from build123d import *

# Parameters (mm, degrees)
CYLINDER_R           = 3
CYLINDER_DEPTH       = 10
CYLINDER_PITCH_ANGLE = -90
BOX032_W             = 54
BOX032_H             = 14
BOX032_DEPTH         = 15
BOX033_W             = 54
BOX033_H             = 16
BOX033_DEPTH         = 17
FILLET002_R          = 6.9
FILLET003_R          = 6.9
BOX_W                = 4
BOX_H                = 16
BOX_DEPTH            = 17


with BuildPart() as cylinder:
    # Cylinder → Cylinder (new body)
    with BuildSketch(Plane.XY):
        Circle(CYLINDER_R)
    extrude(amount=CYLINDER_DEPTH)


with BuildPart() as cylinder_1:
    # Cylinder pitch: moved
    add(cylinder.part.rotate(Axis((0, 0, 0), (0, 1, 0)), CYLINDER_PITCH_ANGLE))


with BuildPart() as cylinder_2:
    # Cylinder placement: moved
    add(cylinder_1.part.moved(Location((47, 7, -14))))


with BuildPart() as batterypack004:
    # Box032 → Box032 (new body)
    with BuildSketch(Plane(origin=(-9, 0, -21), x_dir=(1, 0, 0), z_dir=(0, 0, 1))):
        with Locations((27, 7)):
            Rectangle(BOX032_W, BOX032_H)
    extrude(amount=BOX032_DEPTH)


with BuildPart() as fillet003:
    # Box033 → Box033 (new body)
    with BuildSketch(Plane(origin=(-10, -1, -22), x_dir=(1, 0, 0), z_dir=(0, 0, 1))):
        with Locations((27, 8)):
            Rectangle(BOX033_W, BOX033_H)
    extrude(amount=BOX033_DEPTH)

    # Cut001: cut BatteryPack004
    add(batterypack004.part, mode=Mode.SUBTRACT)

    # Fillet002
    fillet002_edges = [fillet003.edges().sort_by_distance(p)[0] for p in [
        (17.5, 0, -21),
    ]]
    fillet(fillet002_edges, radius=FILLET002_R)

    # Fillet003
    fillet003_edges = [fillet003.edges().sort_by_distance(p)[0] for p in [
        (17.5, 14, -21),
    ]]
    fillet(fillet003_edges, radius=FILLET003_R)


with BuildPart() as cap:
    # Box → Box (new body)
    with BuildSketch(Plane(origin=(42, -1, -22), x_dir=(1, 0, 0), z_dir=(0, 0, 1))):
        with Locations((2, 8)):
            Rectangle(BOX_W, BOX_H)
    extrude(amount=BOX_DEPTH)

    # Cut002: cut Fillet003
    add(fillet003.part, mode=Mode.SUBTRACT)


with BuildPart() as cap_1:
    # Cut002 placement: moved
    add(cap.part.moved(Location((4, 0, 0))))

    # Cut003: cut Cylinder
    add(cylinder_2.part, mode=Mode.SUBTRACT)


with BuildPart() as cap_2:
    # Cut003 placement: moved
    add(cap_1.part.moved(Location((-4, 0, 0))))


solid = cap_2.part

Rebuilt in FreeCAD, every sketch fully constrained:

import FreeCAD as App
import Part
import Sketcher

V = App.Vector


def edges_at(feature, points):
    """Names of the edges that pass closest to the given points."""
    edges = feature.Shape.Edges
    near = lambda p: min(range(len(edges)), key=lambda i: edges[i].distToShape(Part.Vertex(*p))[0])
    return sorted({f"Edge{near(p) + 1}" for p in points})


def add_polygon(sketch, points):
    """Adds a closed chain of lines whose ends are joined by coincident constraints."""
    first, n = sketch.GeometryCount, len(points)
    for a, b in zip(points, points[1:] + points[:1]):
        sketch.addGeometry(Part.LineSegment(App.Vector(*a, 0), App.Vector(*b, 0)), False)
    for i in range(n):
        sketch.addConstraint(Sketcher.Constraint("Coincident", first + i, 2, first + (i + 1) % n, 1))

doc = App.newDocument("Part")
body = doc.addObject("PartDesign::Body", "Body")

sketch1 = body.newObject("Sketcher::SketchObject", "Sketch")
sketch1.AttachmentSupport = (doc.getObject("XY_Plane"), [""])
sketch1.MapMode = "FlatFace"
sketch1.addGeometry(Part.Circle(V(0, 0, 0), V(0, 0, 1), 3), False)
sketch1.addConstraint(Sketcher.Constraint("Coincident", 0, 3, -1, 1))
sketch1.addConstraint(Sketcher.Constraint("Diameter", 0, 6.0))
pad1 = body.newObject("PartDesign::Pad", "Pad")
pad1.Profile = sketch1
pad1.Length = 10
body2 = doc.addObject("PartDesign::Body", "Body001")
doc.recompute()

body.Placement = App.Placement(V(0, 0, 0), App.Rotation(V(0, 1, 0), 270))
boolean = body2.newObject("PartDesign::Boolean", "Boolean")
boolean.Type = "Fuse"
boolean.addObjects([body])
body3 = doc.addObject("PartDesign::Body", "Body002")
doc.recompute()

body2.Placement = App.Placement(V(47, 7, -14), App.Rotation(V(0, 0, 1), 0))
boolean2 = body3.newObject("PartDesign::Boolean", "Boolean001")
boolean2.Type = "Fuse"
boolean2.addObjects([body2])
body4 = doc.addObject("PartDesign::Body", "Body003")

sketch2 = body4.newObject("Sketcher::SketchObject", "Sketch001")
sketch2.AttachmentSupport = (doc.getObject("XY_Plane003"), [""])
sketch2.MapMode = "FlatFace"
sketch2.AttachmentOffset = App.Placement(V(0, 0, -21), App.Rotation())
add_polygon(sketch2, [(-9, 14), (-9, 0), (45, 0), (45, 14)])
sketch2.addConstraint(Sketcher.Constraint("Vertical", 0))
sketch2.addConstraint(Sketcher.Constraint("Horizontal", 1))
sketch2.addConstraint(Sketcher.Constraint("Vertical", 2))
sketch2.addConstraint(Sketcher.Constraint("Horizontal", 3))
sketch2.addConstraint(Sketcher.Constraint("PointOnObject", 0, 2, -1))
sketch2.addConstraint(Sketcher.Constraint("DistanceX", 1, 1, 1, 2, 54.0))
sketch2.addConstraint(Sketcher.Constraint("DistanceY", 0, 2, 0, 1, 14.0))
sketch2.addConstraint(Sketcher.Constraint("DistanceX", 0, 2, -1, 1, 9.0))
pad2 = body4.newObject("PartDesign::Pad", "Pad001")
pad2.Profile = sketch2
pad2.Length = 15
body5 = doc.addObject("PartDesign::Body", "Body004")

sketch3 = body5.newObject("Sketcher::SketchObject", "Sketch002")
sketch3.AttachmentSupport = (doc.getObject("XY_Plane004"), [""])
sketch3.MapMode = "FlatFace"
sketch3.AttachmentOffset = App.Placement(V(0, 0, -22), App.Rotation())
add_polygon(sketch3, [(-10, 15), (-10, -1), (44, -1), (44, 15)])
sketch3.addConstraint(Sketcher.Constraint("Vertical", 0))
sketch3.addConstraint(Sketcher.Constraint("Horizontal", 1))
sketch3.addConstraint(Sketcher.Constraint("Vertical", 2))
sketch3.addConstraint(Sketcher.Constraint("Horizontal", 3))
sketch3.addConstraint(Sketcher.Constraint("DistanceX", 1, 1, 1, 2, 54.0))
sketch3.addConstraint(Sketcher.Constraint("DistanceY", 0, 2, 0, 1, 16.0))
sketch3.addConstraint(Sketcher.Constraint("DistanceX", 0, 2, -1, 1, 10.0))
sketch3.addConstraint(Sketcher.Constraint("DistanceY", 0, 2, -1, 1, 1.0))
pad3 = body5.newObject("PartDesign::Pad", "Pad002")
pad3.Profile = sketch3
pad3.Length = 17
doc.recompute()

boolean3 = body5.newObject("PartDesign::Boolean", "Boolean002")
boolean3.Type = "Cut"
boolean3.addObjects([body4])
doc.recompute()

fillet = body5.newObject("PartDesign::Fillet", "Fillet")
fillet.Base = (boolean3, edges_at(boolean3, [(17.5, 0, -21)]))
fillet.Radius = 6.9
doc.recompute()

fillet2 = body5.newObject("PartDesign::Fillet", "Fillet001")
fillet2.Base = (fillet, edges_at(fillet, [(17.5, 14, -21)]))
fillet2.Radius = 6.9
body6 = doc.addObject("PartDesign::Body", "Body005")

sketch4 = body6.newObject("Sketcher::SketchObject", "Sketch003")
sketch4.AttachmentSupport = (doc.getObject("XY_Plane005"), [""])
sketch4.MapMode = "FlatFace"
sketch4.AttachmentOffset = App.Placement(V(0, 0, -22), App.Rotation())
add_polygon(sketch4, [(42, 15), (42, -1), (46, -1), (46, 15)])
sketch4.addConstraint(Sketcher.Constraint("Vertical", 0))
sketch4.addConstraint(Sketcher.Constraint("Horizontal", 1))
sketch4.addConstraint(Sketcher.Constraint("Vertical", 2))
sketch4.addConstraint(Sketcher.Constraint("Horizontal", 3))
sketch4.addConstraint(Sketcher.Constraint("DistanceX", 1, 1, 1, 2, 4.0))
sketch4.addConstraint(Sketcher.Constraint("DistanceY", 0, 2, 0, 1, 16.0))
sketch4.addConstraint(Sketcher.Constraint("DistanceX", -1, 1, 0, 2, 42.0))
sketch4.addConstraint(Sketcher.Constraint("DistanceY", 0, 2, -1, 1, 1.0))
pad4 = body6.newObject("PartDesign::Pad", "Pad003")
pad4.Profile = sketch4
pad4.Length = 17
doc.recompute()

boolean4 = body6.newObject("PartDesign::Boolean", "Boolean003")
boolean4.Type = "Cut"
boolean4.addObjects([body5])
body7 = doc.addObject("PartDesign::Body", "Body006")
doc.recompute()

body6.Placement = App.Placement(V(4, 0, 0), App.Rotation(V(0, 0, 1), 0))
boolean5 = body7.newObject("PartDesign::Boolean", "Boolean004")
boolean5.Type = "Fuse"
boolean5.addObjects([body6])
doc.recompute()

boolean6 = body7.newObject("PartDesign::Boolean", "Boolean005")
boolean6.Type = "Cut"
boolean6.addObjects([body3])
body8 = doc.addObject("PartDesign::Body", "Body007")
doc.recompute()

body7.Placement = App.Placement(V(-4, 0, 0), App.Rotation(V(0, 0, 1), 0))
boolean7 = body8.newObject("PartDesign::Boolean", "Boolean006")
boolean7.Type = "Fuse"
boolean7.addObjects([body7])

doc.recompute()
